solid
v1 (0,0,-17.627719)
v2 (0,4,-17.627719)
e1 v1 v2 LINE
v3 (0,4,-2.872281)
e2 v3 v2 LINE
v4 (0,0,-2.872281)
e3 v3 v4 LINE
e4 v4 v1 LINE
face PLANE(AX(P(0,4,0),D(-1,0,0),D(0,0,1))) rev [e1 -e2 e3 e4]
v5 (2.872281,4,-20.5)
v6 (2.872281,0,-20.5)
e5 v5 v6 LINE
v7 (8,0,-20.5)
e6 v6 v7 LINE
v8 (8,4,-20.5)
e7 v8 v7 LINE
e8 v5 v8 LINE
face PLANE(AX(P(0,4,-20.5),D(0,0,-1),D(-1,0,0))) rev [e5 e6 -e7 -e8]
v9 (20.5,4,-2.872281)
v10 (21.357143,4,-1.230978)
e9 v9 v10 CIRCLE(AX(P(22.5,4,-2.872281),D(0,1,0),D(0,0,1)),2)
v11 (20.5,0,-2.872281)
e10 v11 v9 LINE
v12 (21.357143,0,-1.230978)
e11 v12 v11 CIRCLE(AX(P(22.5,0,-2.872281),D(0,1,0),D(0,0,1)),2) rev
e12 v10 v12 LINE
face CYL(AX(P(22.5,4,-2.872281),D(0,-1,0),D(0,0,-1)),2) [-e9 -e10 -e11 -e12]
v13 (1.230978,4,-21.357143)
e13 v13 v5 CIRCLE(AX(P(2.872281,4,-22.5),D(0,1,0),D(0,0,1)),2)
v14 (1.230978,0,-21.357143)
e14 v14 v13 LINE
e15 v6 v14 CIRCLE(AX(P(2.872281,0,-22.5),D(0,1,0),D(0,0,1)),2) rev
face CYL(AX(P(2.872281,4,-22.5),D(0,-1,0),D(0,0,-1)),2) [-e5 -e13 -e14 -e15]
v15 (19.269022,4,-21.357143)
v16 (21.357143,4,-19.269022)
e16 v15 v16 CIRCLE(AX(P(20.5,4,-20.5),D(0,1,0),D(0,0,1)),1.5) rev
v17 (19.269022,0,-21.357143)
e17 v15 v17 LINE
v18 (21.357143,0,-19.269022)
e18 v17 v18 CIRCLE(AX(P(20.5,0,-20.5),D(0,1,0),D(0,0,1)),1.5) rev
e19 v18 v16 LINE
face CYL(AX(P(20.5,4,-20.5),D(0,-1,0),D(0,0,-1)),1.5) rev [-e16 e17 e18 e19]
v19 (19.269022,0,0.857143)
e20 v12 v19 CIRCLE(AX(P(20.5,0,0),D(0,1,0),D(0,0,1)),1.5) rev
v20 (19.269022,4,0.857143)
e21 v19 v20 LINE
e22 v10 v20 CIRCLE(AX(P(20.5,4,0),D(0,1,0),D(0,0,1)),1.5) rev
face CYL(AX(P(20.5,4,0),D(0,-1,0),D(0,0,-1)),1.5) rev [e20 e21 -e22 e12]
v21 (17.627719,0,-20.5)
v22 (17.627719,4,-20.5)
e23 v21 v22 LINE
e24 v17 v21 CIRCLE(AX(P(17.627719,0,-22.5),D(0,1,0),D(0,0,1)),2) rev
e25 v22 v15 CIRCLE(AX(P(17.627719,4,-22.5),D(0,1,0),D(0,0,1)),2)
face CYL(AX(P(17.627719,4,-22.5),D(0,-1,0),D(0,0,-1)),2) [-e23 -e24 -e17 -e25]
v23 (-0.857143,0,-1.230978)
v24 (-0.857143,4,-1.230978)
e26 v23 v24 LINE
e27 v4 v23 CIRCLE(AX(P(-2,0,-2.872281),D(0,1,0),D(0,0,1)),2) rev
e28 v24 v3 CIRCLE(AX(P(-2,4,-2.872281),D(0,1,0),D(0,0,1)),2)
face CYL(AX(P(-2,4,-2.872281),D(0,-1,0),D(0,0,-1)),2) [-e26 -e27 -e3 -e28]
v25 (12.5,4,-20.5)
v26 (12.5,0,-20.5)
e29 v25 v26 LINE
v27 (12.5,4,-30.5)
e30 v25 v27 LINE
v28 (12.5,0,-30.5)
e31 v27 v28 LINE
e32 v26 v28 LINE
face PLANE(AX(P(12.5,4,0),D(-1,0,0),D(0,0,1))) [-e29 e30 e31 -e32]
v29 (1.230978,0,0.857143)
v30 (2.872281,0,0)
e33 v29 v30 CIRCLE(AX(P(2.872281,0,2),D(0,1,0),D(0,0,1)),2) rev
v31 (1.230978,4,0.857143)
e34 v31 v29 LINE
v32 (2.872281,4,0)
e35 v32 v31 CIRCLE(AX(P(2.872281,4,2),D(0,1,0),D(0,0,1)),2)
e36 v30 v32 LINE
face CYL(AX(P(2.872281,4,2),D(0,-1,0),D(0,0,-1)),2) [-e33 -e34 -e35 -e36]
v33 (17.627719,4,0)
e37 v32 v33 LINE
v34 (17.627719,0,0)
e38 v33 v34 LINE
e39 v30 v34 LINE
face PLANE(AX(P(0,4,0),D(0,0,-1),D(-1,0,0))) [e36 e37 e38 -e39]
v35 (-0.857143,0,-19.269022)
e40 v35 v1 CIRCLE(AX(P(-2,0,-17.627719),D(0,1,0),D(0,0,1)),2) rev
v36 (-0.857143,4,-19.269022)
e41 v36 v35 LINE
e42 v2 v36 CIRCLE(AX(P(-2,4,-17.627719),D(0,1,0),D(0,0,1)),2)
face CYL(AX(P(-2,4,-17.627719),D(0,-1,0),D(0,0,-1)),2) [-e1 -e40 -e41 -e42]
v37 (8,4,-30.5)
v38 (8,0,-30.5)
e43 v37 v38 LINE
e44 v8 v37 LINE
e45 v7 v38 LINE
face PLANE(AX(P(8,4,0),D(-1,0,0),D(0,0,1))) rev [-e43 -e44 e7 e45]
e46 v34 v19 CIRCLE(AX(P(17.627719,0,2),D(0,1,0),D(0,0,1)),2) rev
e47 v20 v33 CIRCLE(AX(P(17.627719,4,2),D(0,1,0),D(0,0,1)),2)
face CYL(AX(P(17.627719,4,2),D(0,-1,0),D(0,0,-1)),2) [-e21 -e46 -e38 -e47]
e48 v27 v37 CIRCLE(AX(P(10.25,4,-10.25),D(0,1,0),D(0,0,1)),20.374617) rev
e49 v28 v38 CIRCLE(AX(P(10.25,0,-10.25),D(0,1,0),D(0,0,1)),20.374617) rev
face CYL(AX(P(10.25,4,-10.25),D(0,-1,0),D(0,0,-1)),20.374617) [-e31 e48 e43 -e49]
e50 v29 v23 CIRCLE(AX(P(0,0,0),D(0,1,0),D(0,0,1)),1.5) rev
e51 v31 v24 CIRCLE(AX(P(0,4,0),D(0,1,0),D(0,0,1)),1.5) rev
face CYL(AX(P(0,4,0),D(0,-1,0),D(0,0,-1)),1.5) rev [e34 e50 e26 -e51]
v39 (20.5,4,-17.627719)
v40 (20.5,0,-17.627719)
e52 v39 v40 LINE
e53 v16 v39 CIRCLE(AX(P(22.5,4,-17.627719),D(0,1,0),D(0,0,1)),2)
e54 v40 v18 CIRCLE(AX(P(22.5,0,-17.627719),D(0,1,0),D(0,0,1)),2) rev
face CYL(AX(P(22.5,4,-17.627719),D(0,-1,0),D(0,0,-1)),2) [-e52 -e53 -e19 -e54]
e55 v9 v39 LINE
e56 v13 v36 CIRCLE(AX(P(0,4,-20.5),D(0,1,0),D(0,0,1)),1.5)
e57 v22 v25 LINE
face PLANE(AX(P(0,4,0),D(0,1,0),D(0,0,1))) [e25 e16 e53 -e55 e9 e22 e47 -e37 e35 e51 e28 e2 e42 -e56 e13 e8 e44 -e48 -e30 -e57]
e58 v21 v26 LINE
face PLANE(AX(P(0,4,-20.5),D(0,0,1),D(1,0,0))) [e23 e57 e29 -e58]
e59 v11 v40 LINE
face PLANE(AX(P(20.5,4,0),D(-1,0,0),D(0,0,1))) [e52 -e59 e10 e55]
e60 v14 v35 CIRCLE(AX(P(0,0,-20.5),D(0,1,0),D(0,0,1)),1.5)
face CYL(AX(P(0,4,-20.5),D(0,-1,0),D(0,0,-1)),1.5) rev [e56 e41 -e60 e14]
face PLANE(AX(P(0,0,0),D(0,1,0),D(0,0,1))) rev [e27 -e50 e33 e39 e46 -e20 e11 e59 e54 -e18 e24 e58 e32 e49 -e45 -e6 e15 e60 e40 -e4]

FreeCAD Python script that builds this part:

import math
import FreeCAD as App
import Part
import Sketcher

V = App.Vector
Q = App.Units.Quantity


def edges_at(feature, points):
    """Names of the edges that pass closest to the given points."""
    edges = feature.Shape.Edges
    near = lambda p: min(range(len(edges)), key=lambda i: edges[i].distToShape(Part.Vertex(*p))[0])
    return sorted({f"Edge{near(p) + 1}" for p in points})

doc = App.newDocument("Part")
body = doc.addObject("PartDesign::Body", "Body")

sketch1 = body.newObject("Sketcher::SketchObject", "Sketch")
sketch1.AttachmentSupport = (doc.getObject("XZ_Plane"), [""])
sketch1.MapMode = "FlatFace"
sketch1.addGeometry(Part.ArcOfCircle(Part.Circle(V(0, 0, 0), V(0, 0, 1), 1.5), math.radians(0), math.radians(270)), False)
sketch1.addGeometry(Part.LineSegment(V(0, -1.5, 0), V(0, -19, 0)), False)
sketch1.addGeometry(Part.ArcOfCircle(Part.Circle(V(0, -20.5, 0), V(0, 0, 1), 1.5), math.radians(90), math.radians(360)), False)
sketch1.addGeometry(Part.LineSegment(V(1.5, -20.5, 0), V(8, -20.5, 0)), False)
sketch1.addGeometry(Part.LineSegment(V(8, -20.5, 0), V(8, -30.5, 0)), False)
sketch1.addGeometry(Part.ArcOfCircle(Part.Circle(V(10.2, -10.2, 0), V(0, 0, 1), 20.4), math.radians(-84), math.radians(264)), False)
sketch1.addGeometry(Part.LineSegment(V(12.5, -30.5, 0), V(12.5, -20.5, 0)), False)
sketch1.addGeometry(Part.LineSegment(V(12.5, -20.5, 0), V(19, -20.5, 0)), False)
sketch1.addGeometry(Part.ArcOfCircle(Part.Circle(V(20.5, -20.5, 0), V(0, 0, 1), 1.5), math.radians(180), math.radians(450)), False)
sketch1.addGeometry(Part.LineSegment(V(20.5, -19, 0), V(20.5, -1.5, 0)), False)
sketch1.addGeometry(Part.ArcOfCircle(Part.Circle(V(20.5, 0, 0), V(0, 0, 1), 1.5), math.radians(-90), math.radians(180)), False)
sketch1.addGeometry(Part.LineSegment(V(19, 0, 0), V(1.5, 0, 0)), False)
sketch1.addConstraint(Sketcher.Constraint("Coincident", 0, 2, 1, 1))
sketch1.addConstraint(Sketcher.Constraint("Coincident", 1, 2, 2, 1))
sketch1.addConstraint(Sketcher.Constraint("Coincident", 2, 2, 3, 1))
sketch1.addConstraint(Sketcher.Constraint("Coincident", 3, 2, 4, 1))
sketch1.addConstraint(Sketcher.Constraint("Coincident", 4, 2, 5, 2))
sketch1.addConstraint(Sketcher.Constraint("Coincident", 5, 1, 6, 1))
sketch1.addConstraint(Sketcher.Constraint("Coincident", 6, 2, 7, 1))
sketch1.addConstraint(Sketcher.Constraint("Coincident", 7, 2, 8, 1))
sketch1.addConstraint(Sketcher.Constraint("Coincident", 8, 2, 9, 1))
sketch1.addConstraint(Sketcher.Constraint("Coincident", 9, 2, 10, 1))
sketch1.addConstraint(Sketcher.Constraint("Coincident", 10, 2, 11, 1))
sketch1.addConstraint(Sketcher.Constraint("Coincident", 11, 2, 0, 1))
sketch1.addConstraint(Sketcher.Constraint("Vertical", 1))
sketch1.addConstraint(Sketcher.Constraint("Horizontal", 3))
sketch1.addConstraint(Sketcher.Constraint("Vertical", 4))
sketch1.addConstraint(Sketcher.Constraint("Vertical", 6))
sketch1.addConstraint(Sketcher.Constraint("Horizontal", 7))
sketch1.addConstraint(Sketcher.Constraint("Vertical", 9))
sketch1.addConstraint(Sketcher.Constraint("Horizontal", 11))
sketch1.addConstraint(Sketcher.Constraint("Coincident", 0, 3, -1, 1))
sketch1.addConstraint(Sketcher.Constraint("Equal", 0, 2))
sketch1.addConstraint(Sketcher.Constraint("Equal", 2, 8))
sketch1.addConstraint(Sketcher.Constraint("Equal", 8, 10))
sketch1.addConstraint(Sketcher.Constraint("PointOnObject", 2, 3, -2))
sketch1.addConstraint(Sketcher.Constraint("PointOnObject", 10, 3, -1))
sketch1.addConstraint(Sketcher.Constraint("PointOnObject", 0, 2, -2))
sketch1.addConstraint(Sketcher.Constraint("PointOnObject", 10, 2, -1))
sketch1.addConstraint(Sketcher.Constraint("Horizontal", 2, 3, 8, 3))
sketch1.addConstraint(Sketcher.Constraint("Horizontal", 8, 3, 2, 2))
sketch1.addConstraint(Sketcher.Constraint("Horizontal", 4, 2, 5, 1))
sketch1.addConstraint(Sketcher.Constraint("Horizontal", 3, 2, 6, 2))
sketch1.addConstraint(Sketcher.Constraint("Vertical", 8, 3, 10, 3))
sketch1.addConstraint(Sketcher.Constraint("Vertical", 10, 3, 8, 2))
sketch1.addConstraint(Sketcher.Constraint("Equal", 3, 7))
sketch1.addConstraint(Sketcher.Constraint("Equal", 11, 1))
sketch1.addConstraint(Sketcher.Constraint("Radius", 0, Q("1.5 mm")))
sketch1.addConstraint(Sketcher.Constraint("DistanceY", 4, 2, 4, 1, Q("10 mm")))
sketch1.addConstraint(Sketcher.Constraint("DistanceX", 3, 1, 3, 2, Q("6.5 mm")))
sketch1.addConstraint(Sketcher.Constraint("DistanceX", 11, 2, 11, 1, Q("17.5 mm")))
sketch1.addConstraint(Sketcher.Constraint("DistanceY", 5, 3, -1, 1, Q("10.25 mm")))
pad1 = body.newObject("PartDesign::Pad", "Pad")
pad1.Profile = sketch1
pad1.Length = 4
pad1.Reversed = True
doc.recompute()

fillet = body.newObject("PartDesign::Fillet", "Fillet")
fillet.Base = (pad1, edges_at(pad1, [
    (0, 2, -19),
    (0, 2, -1.5),
    (1.5, 2, 0),
    (19, 2, 0),
    (20.5, 2, -1.5),
    (20.5, 2, -19),
    (19, 2, -20.5),
    (1.5, 2, -20.5),
]))
fillet.Radius = 2

doc.recompute()
